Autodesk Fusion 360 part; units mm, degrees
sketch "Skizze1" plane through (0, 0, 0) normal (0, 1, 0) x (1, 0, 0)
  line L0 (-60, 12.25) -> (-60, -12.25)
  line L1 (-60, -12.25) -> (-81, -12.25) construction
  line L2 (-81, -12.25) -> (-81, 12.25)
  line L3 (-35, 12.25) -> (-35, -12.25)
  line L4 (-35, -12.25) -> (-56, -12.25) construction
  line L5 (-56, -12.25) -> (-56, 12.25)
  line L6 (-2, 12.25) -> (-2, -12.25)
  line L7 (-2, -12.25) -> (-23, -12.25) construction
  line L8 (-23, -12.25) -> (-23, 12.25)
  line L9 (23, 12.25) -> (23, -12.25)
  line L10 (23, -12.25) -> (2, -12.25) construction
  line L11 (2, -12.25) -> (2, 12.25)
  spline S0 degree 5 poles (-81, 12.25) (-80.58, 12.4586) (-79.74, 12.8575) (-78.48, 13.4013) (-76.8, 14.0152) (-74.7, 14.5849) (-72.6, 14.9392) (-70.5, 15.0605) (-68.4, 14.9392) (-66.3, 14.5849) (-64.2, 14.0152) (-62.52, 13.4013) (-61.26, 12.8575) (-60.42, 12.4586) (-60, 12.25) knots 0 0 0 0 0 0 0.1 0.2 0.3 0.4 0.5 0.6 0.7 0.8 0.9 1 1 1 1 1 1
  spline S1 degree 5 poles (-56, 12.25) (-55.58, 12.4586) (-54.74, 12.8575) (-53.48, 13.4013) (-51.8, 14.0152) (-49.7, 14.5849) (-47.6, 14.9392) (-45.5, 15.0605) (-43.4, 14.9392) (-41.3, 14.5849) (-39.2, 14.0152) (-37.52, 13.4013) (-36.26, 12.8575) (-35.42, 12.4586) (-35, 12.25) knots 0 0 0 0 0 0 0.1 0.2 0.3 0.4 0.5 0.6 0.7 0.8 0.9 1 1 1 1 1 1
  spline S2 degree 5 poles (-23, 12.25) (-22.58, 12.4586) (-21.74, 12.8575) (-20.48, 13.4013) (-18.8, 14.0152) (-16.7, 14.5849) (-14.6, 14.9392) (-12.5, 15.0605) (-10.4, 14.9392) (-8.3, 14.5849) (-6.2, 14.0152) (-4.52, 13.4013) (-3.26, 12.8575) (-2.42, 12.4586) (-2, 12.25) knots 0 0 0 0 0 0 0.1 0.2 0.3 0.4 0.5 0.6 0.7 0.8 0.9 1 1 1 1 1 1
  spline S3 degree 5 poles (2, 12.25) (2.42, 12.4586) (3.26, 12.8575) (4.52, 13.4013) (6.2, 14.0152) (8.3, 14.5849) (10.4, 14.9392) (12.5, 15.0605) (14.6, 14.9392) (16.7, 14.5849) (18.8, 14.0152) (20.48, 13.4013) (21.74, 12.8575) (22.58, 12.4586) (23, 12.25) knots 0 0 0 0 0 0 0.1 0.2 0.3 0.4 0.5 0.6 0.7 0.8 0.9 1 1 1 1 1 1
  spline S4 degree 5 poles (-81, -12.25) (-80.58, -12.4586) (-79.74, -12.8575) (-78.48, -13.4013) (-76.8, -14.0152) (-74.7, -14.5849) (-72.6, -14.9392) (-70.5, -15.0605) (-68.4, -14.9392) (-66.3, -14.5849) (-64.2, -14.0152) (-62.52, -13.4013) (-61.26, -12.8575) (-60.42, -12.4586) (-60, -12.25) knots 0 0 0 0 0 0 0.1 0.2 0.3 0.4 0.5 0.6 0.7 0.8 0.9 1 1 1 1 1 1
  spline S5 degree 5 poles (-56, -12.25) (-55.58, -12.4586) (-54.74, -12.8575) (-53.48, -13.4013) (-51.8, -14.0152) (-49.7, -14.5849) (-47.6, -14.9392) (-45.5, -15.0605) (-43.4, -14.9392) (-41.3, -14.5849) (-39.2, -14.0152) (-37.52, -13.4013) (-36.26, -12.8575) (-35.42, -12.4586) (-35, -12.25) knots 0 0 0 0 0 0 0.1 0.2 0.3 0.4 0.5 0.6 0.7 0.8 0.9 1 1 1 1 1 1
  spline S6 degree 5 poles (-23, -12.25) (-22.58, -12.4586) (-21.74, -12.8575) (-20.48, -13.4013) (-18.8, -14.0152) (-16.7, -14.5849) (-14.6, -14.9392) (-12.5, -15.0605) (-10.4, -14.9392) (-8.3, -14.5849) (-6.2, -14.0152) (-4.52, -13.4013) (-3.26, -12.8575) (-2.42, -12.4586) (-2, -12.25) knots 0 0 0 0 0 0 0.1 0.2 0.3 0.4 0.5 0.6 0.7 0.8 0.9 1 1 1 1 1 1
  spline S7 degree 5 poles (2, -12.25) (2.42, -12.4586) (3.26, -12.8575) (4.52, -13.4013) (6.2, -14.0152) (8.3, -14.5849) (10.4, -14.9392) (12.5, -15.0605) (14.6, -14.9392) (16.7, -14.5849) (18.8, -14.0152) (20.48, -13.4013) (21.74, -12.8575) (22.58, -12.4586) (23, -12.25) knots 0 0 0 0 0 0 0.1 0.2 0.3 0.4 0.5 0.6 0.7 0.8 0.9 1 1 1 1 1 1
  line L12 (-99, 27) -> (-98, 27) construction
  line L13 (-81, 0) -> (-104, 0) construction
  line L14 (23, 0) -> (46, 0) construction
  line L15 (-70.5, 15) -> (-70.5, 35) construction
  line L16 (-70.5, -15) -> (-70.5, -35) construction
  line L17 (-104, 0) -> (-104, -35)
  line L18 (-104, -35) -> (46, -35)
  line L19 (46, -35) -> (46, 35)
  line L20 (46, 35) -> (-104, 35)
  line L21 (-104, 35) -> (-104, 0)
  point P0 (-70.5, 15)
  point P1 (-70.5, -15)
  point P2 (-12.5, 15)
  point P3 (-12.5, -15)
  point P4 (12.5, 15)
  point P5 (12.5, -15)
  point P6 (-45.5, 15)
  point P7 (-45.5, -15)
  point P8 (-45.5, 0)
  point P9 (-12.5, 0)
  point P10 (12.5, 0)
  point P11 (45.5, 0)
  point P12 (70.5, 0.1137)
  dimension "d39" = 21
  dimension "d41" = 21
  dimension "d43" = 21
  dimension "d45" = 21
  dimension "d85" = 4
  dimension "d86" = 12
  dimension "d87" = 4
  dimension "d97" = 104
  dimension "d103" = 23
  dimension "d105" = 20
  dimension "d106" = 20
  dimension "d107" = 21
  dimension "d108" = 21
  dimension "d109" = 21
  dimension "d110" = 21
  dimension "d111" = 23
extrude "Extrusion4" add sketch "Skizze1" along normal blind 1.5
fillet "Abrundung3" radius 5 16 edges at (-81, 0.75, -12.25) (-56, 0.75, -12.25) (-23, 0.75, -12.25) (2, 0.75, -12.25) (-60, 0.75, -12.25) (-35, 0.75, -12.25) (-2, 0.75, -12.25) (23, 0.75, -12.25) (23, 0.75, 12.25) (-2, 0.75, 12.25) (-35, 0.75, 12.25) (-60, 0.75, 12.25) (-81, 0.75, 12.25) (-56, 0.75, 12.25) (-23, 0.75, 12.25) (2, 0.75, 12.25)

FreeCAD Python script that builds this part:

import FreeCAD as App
import Part
import Sketcher
Q = App.Units.Quantity


def edges_at(feature, points):
    """Names of the edges that pass closest to the given points."""
    edges = feature.Shape.Edges
    near = lambda p: min(range(len(edges)), key=lambda i: edges[i].distToShape(Part.Vertex(*p))[0])
    return sorted({f"Edge{near(p) + 1}" for p in points})


def add_polygon(sketch, points):
    """Adds a closed chain of lines whose ends are joined by coincident constraints."""
    first, n = sketch.GeometryCount, len(points)
    for a, b in zip(points, points[1:] + points[:1]):
        sketch.addGeometry(Part.LineSegment(App.Vector(*a, 0), App.Vector(*b, 0)), False)
    for i in range(n):
        sketch.addConstraint(Sketcher.Constraint("Coincident", first + i, 2, first + (i + 1) % n, 1))

doc = App.newDocument("Part")
body = doc.addObject("PartDesign::Body", "Body")

sketch1 = body.newObject("Sketcher::SketchObject", "Sketch")
sketch1.AttachmentSupport = (doc.getObject("XZ_Plane"), [""])
sketch1.MapMode = "FlatFace"
add_polygon(sketch1, [(-104, -35), (-104, 35), (46, 35), (46, -35)])
sketch1.addGeometry(Part.BSplineCurve([App.Vector(-81, -12.25, 0), App.Vector(-80.58, -12.4586, 0), App.Vector(-79.74, -12.8575, 0), App.Vector(-78.48, -13.4013, 0), App.Vector(-76.8, -14.0152, 0), App.Vector(-74.7, -14.5849, 0), App.Vector(-72.6, -14.9392, 0), App.Vector(-70.5, -15.0605, 0), App.Vector(-68.4, -14.9392, 0), App.Vector(-66.3, -14.5849, 0), App.Vector(-64.2, -14.0152, 0), App.Vector(-62.52, -13.4013, 0), App.Vector(-61.26, -12.8575, 0), App.Vector(-60.42, -12.4586, 0), App.Vector(-60, -12.25, 0)], [6, 1, 1, 1, 1, 1, 1, 1, 1, 1, 6], [0, 0.1, 0.2, 0.3, 0.4, 0.5, 0.6, 0.7, 0.8, 0.9, 1], False, 5, [1, 1, 1, 1, 1, 1, 1, 1, 1, 1, 1, 1, 1, 1, 1], False), False)
sketch1.addGeometry(Part.LineSegment(App.Vector(-60, -12.25, 0), App.Vector(-60, 12.25, 0)), False)
sketch1.addGeometry(Part.BSplineCurve([App.Vector(-81, 12.25, 0), App.Vector(-80.58, 12.4586, 0), App.Vector(-79.74, 12.8575, 0), App.Vector(-78.48, 13.4013, 0), App.Vector(-76.8, 14.0152, 0), App.Vector(-74.7, 14.5849, 0), App.Vector(-72.6, 14.9392, 0), App.Vector(-70.5, 15.0605, 0), App.Vector(-68.4, 14.9392, 0), App.Vector(-66.3, 14.5849, 0), App.Vector(-64.2, 14.0152, 0), App.Vector(-62.52, 13.4013, 0), App.Vector(-61.26, 12.8575, 0), App.Vector(-60.42, 12.4586, 0), App.Vector(-60, 12.25, 0)], [6, 1, 1, 1, 1, 1, 1, 1, 1, 1, 6], [0, 0.1, 0.2, 0.3, 0.4, 0.5, 0.6, 0.7, 0.8, 0.9, 1], False, 5, [1, 1, 1, 1, 1, 1, 1, 1, 1, 1, 1, 1, 1, 1, 1], False), False)
sketch1.addGeometry(Part.LineSegment(App.Vector(-81, 12.25, 0), App.Vector(-81, -12.25, 0)), False)
sketch1.addGeometry(Part.BSplineCurve([App.Vector(-56, -12.25, 0), App.Vector(-55.58, -12.4586, 0), App.Vector(-54.74, -12.8575, 0), App.Vector(-53.48, -13.4013, 0), App.Vector(-51.8, -14.0152, 0), App.Vector(-49.7, -14.5849, 0), App.Vector(-47.6, -14.9392, 0), App.Vector(-45.5, -15.0605, 0), App.Vector(-43.4, -14.9392, 0), App.Vector(-41.3, -14.5849, 0), App.Vector(-39.2, -14.0152, 0), App.Vector(-37.52, -13.4013, 0), App.Vector(-36.26, -12.8575, 0), App.Vector(-35.42, -12.4586, 0), App.Vector(-35, -12.25, 0)], [6, 1, 1, 1, 1, 1, 1, 1, 1, 1, 6], [0, 0.1, 0.2, 0.3, 0.4, 0.5, 0.6, 0.7, 0.8, 0.9, 1], False, 5, [1, 1, 1, 1, 1, 1, 1, 1, 1, 1, 1, 1, 1, 1, 1], False), False)
sketch1.addGeometry(Part.LineSegment(App.Vector(-35, -12.25, 0), App.Vector(-35, 12.25, 0)), False)
sketch1.addGeometry(Part.BSplineCurve([App.Vector(-56, 12.25, 0), App.Vector(-55.58, 12.4586, 0), App.Vector(-54.74, 12.8575, 0), App.Vector(-53.48, 13.4013, 0), App.Vector(-51.8, 14.0152, 0), App.Vector(-49.7, 14.5849, 0), App.Vector(-47.6, 14.9392, 0), App.Vector(-45.5, 15.0605, 0), App.Vector(-43.4, 14.9392, 0), App.Vector(-41.3, 14.5849, 0), App.Vector(-39.2, 14.0152, 0), App.Vector(-37.52, 13.4013, 0), App.Vector(-36.26, 12.8575, 0), App.Vector(-35.42, 12.4586, 0), App.Vector(-35, 12.25, 0)], [6, 1, 1, 1, 1, 1, 1, 1, 1, 1, 6], [0, 0.1, 0.2, 0.3, 0.4, 0.5, 0.6, 0.7, 0.8, 0.9, 1], False, 5, [1, 1, 1, 1, 1, 1, 1, 1, 1, 1, 1, 1, 1, 1, 1], False), False)
sketch1.addGeometry(Part.LineSegment(App.Vector(-56, 12.25, 0), App.Vector(-56, -12.25, 0)), False)
sketch1.addGeometry(Part.BSplineCurve([App.Vector(-23, -12.25, 0), App.Vector(-22.58, -12.4586, 0), App.Vector(-21.74, -12.8575, 0), App.Vector(-20.48, -13.4013, 0), App.Vector(-18.8, -14.0152, 0), App.Vector(-16.7, -14.5849, 0), App.Vector(-14.6, -14.9392, 0), App.Vector(-12.5, -15.0605, 0), App.Vector(-10.4, -14.9392, 0), App.Vector(-8.3, -14.5849, 0), App.Vector(-6.2, -14.0152, 0), App.Vector(-4.52, -13.4013, 0), App.Vector(-3.26, -12.8575, 0), App.Vector(-2.42, -12.4586, 0), App.Vector(-2, -12.25, 0)], [6, 1, 1, 1, 1, 1, 1, 1, 1, 1, 6], [0, 0.1, 0.2, 0.3, 0.4, 0.5, 0.6, 0.7, 0.8, 0.9, 1], False, 5, [1, 1, 1, 1, 1, 1, 1, 1, 1, 1, 1, 1, 1, 1, 1], False), False)
sketch1.addGeometry(Part.LineSegment(App.Vector(-2, -12.25, 0), App.Vector(-2, 12.25, 0)), False)
sketch1.addGeometry(Part.BSplineCurve([App.Vector(-23, 12.25, 0), App.Vector(-22.58, 12.4586, 0), App.Vector(-21.74, 12.8575, 0), App.Vector(-20.48, 13.4013, 0), App.Vector(-18.8, 14.0152, 0), App.Vector(-16.7, 14.5849, 0), App.Vector(-14.6, 14.9392, 0), App.Vector(-12.5, 15.0605, 0), App.Vector(-10.4, 14.9392, 0), App.Vector(-8.3, 14.5849, 0), App.Vector(-6.2, 14.0152, 0), App.Vector(-4.52, 13.4013, 0), App.Vector(-3.26, 12.8575, 0), App.Vector(-2.42, 12.4586, 0), App.Vector(-2, 12.25, 0)], [6, 1, 1, 1, 1, 1, 1, 1, 1, 1, 6], [0, 0.1, 0.2, 0.3, 0.4, 0.5, 0.6, 0.7, 0.8, 0.9, 1], False, 5, [1, 1, 1, 1, 1, 1, 1, 1, 1, 1, 1, 1, 1, 1, 1], False), False)
sketch1.addGeometry(Part.LineSegment(App.Vector(-23, 12.25, 0), App.Vector(-23, -12.25, 0)), False)
sketch1.addGeometry(Part.BSplineCurve([App.Vector(2, -12.25, 0), App.Vector(2.42, -12.4586, 0), App.Vector(3.26, -12.8575, 0), App.Vector(4.52, -13.4013, 0), App.Vector(6.2, -14.0152, 0), App.Vector(8.3, -14.5849, 0), App.Vector(10.4, -14.9392, 0), App.Vector(12.5, -15.0605, 0), App.Vector(14.6, -14.9392, 0), App.Vector(16.7, -14.5849, 0), App.Vector(18.8, -14.0152, 0), App.Vector(20.48, -13.4013, 0), App.Vector(21.74, -12.8575, 0), App.Vector(22.58, -12.4586, 0), App.Vector(23, -12.25, 0)], [6, 1, 1, 1, 1, 1, 1, 1, 1, 1, 6], [0, 0.1, 0.2, 0.3, 0.4, 0.5, 0.6, 0.7, 0.8, 0.9, 1], False, 5, [1, 1, 1, 1, 1, 1, 1, 1, 1, 1, 1, 1, 1, 1, 1], False), False)
sketch1.addGeometry(Part.LineSegment(App.Vector(23, -12.25, 0), App.Vector(23, 12.25, 0)), False)
sketch1.addGeometry(Part.BSplineCurve([App.Vector(2, 12.25, 0), App.Vector(2.42, 12.4586, 0), App.Vector(3.26, 12.8575, 0), App.Vector(4.52, 13.4013, 0), App.Vector(6.2, 14.0152, 0), App.Vector(8.3, 14.5849, 0), App.Vector(10.4, 14.9392, 0), App.Vector(12.5, 15.0605, 0), App.Vector(14.6, 14.9392, 0), App.Vector(16.7, 14.5849, 0), App.Vector(18.8, 14.0152, 0), App.Vector(20.48, 13.4013, 0), App.Vector(21.74, 12.8575, 0), App.Vector(22.58, 12.4586, 0), App.Vector(23, 12.25, 0)], [6, 1, 1, 1, 1, 1, 1, 1, 1, 1, 6], [0, 0.1, 0.2, 0.3, 0.4, 0.5, 0.6, 0.7, 0.8, 0.9, 1], False, 5, [1, 1, 1, 1, 1, 1, 1, 1, 1, 1, 1, 1, 1, 1, 1], False), False)
sketch1.addGeometry(Part.LineSegment(App.Vector(2, 12.25, 0), App.Vector(2, -12.25, 0)), False)
sketch1.addConstraint([
    Sketcher.Constraint("Block", 4),
    Sketcher.Constraint("Block", 6),
    Sketcher.Constraint("Block", 8),
    Sketcher.Constraint("Block", 10),
    Sketcher.Constraint("Block", 12),
    Sketcher.Constraint("Block", 14),
    Sketcher.Constraint("Block", 16),
    Sketcher.Constraint("Block", 18),
    Sketcher.Constraint("Coincident", 4, 2, 5, 1),
    Sketcher.Constraint("Coincident", 5, 2, 6, 2),
    Sketcher.Constraint("Coincident", 6, 1, 7, 1),
    Sketcher.Constraint("Coincident", 7, 2, 4, 1),
    Sketcher.Constraint("Coincident", 8, 2, 9, 1),
    Sketcher.Constraint("Coincident", 9, 2, 10, 2),
    Sketcher.Constraint("Coincident", 10, 1, 11, 1),
    Sketcher.Constraint("Coincident", 11, 2, 8, 1),
    Sketcher.Constraint("Coincident", 12, 2, 13, 1),
    Sketcher.Constraint("Coincident", 13, 2, 14, 2),
    Sketcher.Constraint("Coincident", 14, 1, 15, 1),
    Sketcher.Constraint("Coincident", 15, 2, 12, 1),
    Sketcher.Constraint("Coincident", 16, 2, 17, 1),
    Sketcher.Constraint("Coincident", 17, 2, 18, 2),
    Sketcher.Constraint("Coincident", 18, 1, 19, 1),
    Sketcher.Constraint("Coincident", 19, 2, 16, 1),
    Sketcher.Constraint("Vertical", 0),
    Sketcher.Constraint("Horizontal", 1),
    Sketcher.Constraint("Vertical", 2),
    Sketcher.Constraint("Horizontal", 3),
    Sketcher.Constraint("DistanceX", 0, 2, -1, 1, Q("104 mm")),
    Sketcher.Constraint("DistanceX", 17, 2, 1, 2, Q("23 mm")),
    Sketcher.Constraint("DistanceY", 0, 1, 0, 2, Q("70 mm")),
    Sketcher.Constraint("DistanceY", -1, 1, 0, 2, Q("35 mm")),
])
pad1 = body.newObject("PartDesign::Pad", "Pad")
pad1.Profile = sketch1
pad1.Length = 1.5
pad1.Reversed = True
doc.recompute()

fillet = body.newObject("PartDesign::Fillet", "Fillet")
fillet.Base = (pad1, edges_at(pad1, [
    (-81, 0.75, -12.25),
    (-56, 0.75, -12.25),
    (-23, 0.75, -12.25),
    (2, 0.75, -12.25),
    (-60, 0.75, -12.25),
    (-35, 0.75, -12.25),
    (-2, 0.75, -12.25),
    (23, 0.75, -12.25),
    (23, 0.75, 12.25),
    (-2, 0.75, 12.25),
    (-35, 0.75, 12.25),
    (-60, 0.75, 12.25),
    (-81, 0.75, 12.25),
    (-56, 0.75, 12.25),
    (-23, 0.75, 12.25),
    (2, 0.75, 12.25),
]))
fillet.Radius = 5

doc.recompute()
